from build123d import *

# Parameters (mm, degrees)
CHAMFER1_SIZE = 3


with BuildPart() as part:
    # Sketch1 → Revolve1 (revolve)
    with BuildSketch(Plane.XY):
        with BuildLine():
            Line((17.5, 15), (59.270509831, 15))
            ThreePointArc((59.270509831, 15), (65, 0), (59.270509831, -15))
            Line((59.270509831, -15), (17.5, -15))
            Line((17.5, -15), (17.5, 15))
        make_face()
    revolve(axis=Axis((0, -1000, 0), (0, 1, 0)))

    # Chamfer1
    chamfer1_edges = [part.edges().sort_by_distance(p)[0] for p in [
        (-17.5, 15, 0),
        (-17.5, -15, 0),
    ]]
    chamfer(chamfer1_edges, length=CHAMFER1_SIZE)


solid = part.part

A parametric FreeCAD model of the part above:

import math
import FreeCAD as App
import Part
import Sketcher
from FreeCAD import Vector


def edges_at(feature, points):
    """Names of the edges that pass closest to the given points."""
    edges = feature.Shape.Edges
    near = lambda p: min(range(len(edges)), key=lambda i: edges[i].distToShape(Part.Vertex(*p))[0])
    return sorted({f"Edge{near(p) + 1}" for p in points})

doc = App.newDocument("Part")
body = doc.addObject("PartDesign::Body", "Body")

# Sketch on XY plane
sketch1 = doc.addObject("Sketcher::SketchObject", "Sketch")
body.addObject(sketch1)
sketch1.AttachmentSupport = (doc.XY_Plane, [""])
sketch1.MapMode = "FlatFace"
sketch1.addGeometry([
    Part.LineSegment(Vector(59, 15, 0), Vector(18, 15, 0)),
    Part.LineSegment(Vector(18, 15, 0), Vector(18, -15, 0)),
    Part.LineSegment(Vector(18, -15, 0), Vector(59, -15, 0)),
    Part.ArcOfCircle(Part.Circle(Vector(43, 0, 0), Vector(0, 0, 1), 22), math.radians(-42), math.radians(42)),
], False)
sketch1.addConstraint([
    Sketcher.Constraint("Coincident", 0, 2, 1, 1),
    Sketcher.Constraint("Coincident", 1, 2, 2, 1),
    Sketcher.Constraint("Coincident", 2, 2, 3, 1),
    Sketcher.Constraint("Coincident", 3, 2, 0, 1),
    Sketcher.Constraint("Horizontal", 0),
    Sketcher.Constraint("Vertical", 1),
    Sketcher.Constraint("Horizontal", 2),
    Sketcher.Constraint("Symmetric", 2, 2, 3, 2, -1),
    Sketcher.Constraint("Radius", 3, 22.5),
    Sketcher.Constraint("DistanceY", 1, 2, 1, 1, 30.0),
    Sketcher.Constraint("DistanceX", 0, 2, 3, 3, 25.0),
    Sketcher.Constraint("DistanceX", -1, 1, 3, 3, 42.5),
])
revolution = doc.addObject("PartDesign::Revolution", "Revolution")
body.addObject(revolution)
revolution.Profile = sketch1
revolution.ReferenceAxis = (sketch1, ["V_Axis"])
revolution.Angle = 360
doc.recompute()

chamfer = doc.addObject("PartDesign::Chamfer", "Chamfer")
body.addObject(chamfer)
chamfer.Base = (revolution, edges_at(revolution, [(-17.5, 15, 0), (-17.5, -15, 0)]))
chamfer.Size = 3

doc.recompute()
